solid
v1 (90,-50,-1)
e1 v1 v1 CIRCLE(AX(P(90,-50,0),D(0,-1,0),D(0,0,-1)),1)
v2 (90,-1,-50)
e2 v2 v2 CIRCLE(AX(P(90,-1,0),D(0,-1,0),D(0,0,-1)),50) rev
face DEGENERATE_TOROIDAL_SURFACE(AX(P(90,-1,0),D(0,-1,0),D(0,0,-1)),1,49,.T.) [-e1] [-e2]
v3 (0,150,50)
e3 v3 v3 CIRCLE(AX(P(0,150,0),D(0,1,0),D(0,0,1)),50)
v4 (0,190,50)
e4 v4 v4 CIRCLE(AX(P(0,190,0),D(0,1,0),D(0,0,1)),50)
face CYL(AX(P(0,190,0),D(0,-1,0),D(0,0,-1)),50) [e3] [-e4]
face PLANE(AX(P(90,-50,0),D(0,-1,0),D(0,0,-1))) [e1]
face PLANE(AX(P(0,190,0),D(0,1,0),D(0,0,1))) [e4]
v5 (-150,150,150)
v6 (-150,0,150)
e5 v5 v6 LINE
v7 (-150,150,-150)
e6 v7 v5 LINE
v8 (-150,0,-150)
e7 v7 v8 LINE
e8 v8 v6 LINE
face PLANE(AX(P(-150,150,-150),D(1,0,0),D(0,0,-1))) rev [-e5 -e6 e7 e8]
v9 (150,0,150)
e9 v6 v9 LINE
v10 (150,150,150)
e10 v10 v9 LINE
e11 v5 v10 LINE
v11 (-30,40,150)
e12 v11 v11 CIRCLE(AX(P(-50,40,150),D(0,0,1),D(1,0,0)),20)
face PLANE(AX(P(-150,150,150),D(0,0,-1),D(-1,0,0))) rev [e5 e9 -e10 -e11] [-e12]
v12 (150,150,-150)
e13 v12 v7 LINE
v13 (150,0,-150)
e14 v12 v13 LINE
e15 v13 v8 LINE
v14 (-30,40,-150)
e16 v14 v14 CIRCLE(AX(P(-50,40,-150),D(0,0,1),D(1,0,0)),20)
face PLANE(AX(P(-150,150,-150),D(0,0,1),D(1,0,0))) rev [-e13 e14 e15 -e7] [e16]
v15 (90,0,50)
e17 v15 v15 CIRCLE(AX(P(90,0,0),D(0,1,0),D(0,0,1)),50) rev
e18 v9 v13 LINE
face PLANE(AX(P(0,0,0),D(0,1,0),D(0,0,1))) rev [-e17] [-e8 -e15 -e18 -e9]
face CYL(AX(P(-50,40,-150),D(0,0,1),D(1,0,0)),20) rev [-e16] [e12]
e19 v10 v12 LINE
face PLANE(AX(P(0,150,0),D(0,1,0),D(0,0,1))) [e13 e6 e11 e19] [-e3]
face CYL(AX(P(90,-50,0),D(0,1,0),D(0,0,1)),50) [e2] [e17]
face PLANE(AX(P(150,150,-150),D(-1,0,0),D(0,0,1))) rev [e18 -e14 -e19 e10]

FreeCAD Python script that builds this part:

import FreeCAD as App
import Part
import Sketcher

V = App.Vector
Q = App.Units.Quantity


def edges_at(feature, points):
    """Names of the edges that pass closest to the given points."""
    edges = feature.Shape.Edges
    near = lambda p: min(range(len(edges)), key=lambda i: edges[i].distToShape(Part.Vertex(*p))[0])
    return sorted({f"Edge{near(p) + 1}" for p in points})

doc = App.newDocument("Part")
body = doc.addObject("PartDesign::Body", "Body")

# Sketch on XZ plane
sketch1 = doc.addObject("Sketcher::SketchObject", "Sketch")
body.addObject(sketch1)
sketch1.AttachmentSupport = (doc.XZ_Plane, [""])
sketch1.MapMode = "FlatFace"
sketch1.addGeometry(Part.LineSegment(V(-150, -150, 0), V(-150, 150, 0)), False)
sketch1.addGeometry(Part.LineSegment(V(-150, 150, 0), V(150, 150, 0)), False)
sketch1.addGeometry(Part.LineSegment(V(150, 150, 0), V(150, -150, 0)), False)
sketch1.addGeometry(Part.LineSegment(V(150, -150, 0), V(-150, -150, 0)), False)
sketch1.addConstraint(Sketcher.Constraint("Coincident", 0, 2, 1, 1))
sketch1.addConstraint(Sketcher.Constraint("Coincident", 1, 2, 2, 1))
sketch1.addConstraint(Sketcher.Constraint("Coincident", 2, 2, 3, 1))
sketch1.addConstraint(Sketcher.Constraint("Coincident", 3, 2, 0, 1))
sketch1.addConstraint(Sketcher.Constraint("Vertical", 0))
sketch1.addConstraint(Sketcher.Constraint("Horizontal", 1))
sketch1.addConstraint(Sketcher.Constraint("Vertical", 2))
sketch1.addConstraint(Sketcher.Constraint("Horizontal", 3))
sketch1.addConstraint(Sketcher.Constraint("Symmetric", 0, 2, 2, 2, -1, 1))
sketch1.addConstraint(Sketcher.Constraint("Equal", 3, 0))
sketch1.addConstraint(Sketcher.Constraint("DistanceX", 1, 1, 1, 2, Q("300 mm")))
pad1 = doc.addObject("PartDesign::Pad", "Pad")
body.addObject(pad1)
pad1.Profile = sketch1
pad1.Length = 150
pad1.Reversed = True

# Sketch on XY plane
sketch2 = doc.addObject("Sketcher::SketchObject", "Sketch001")
body.addObject(sketch2)
sketch2.AttachmentSupport = (doc.XY_Plane, [""])
sketch2.MapMode = "FlatFace"
sketch2.AttachmentOffset = App.Placement(V(0, 0, 150), App.Rotation())
sketch2.addGeometry(Part.Circle(V(-50, 40, 0), V(0, 0, 1), 20), False)
sketch2.addConstraint(Sketcher.Constraint("Diameter", 0, Q("40 mm")))
sketch2.addConstraint(Sketcher.Constraint("DistanceX", 0, 3, -1, 1, Q("50 mm")))
sketch2.addConstraint(Sketcher.Constraint("DistanceY", -1, 1, 0, 3, Q("40 mm")))
pocket1 = doc.addObject("PartDesign::Pocket", "Pocket")
body.addObject(pocket1)
pocket1.Profile = sketch2
pocket1.Type = "ThroughAll"

# Sketch on XZ plane
sketch3 = doc.addObject("Sketcher::SketchObject", "Sketch002")
body.addObject(sketch3)
sketch3.AttachmentSupport = (doc.XZ_Plane, [""])
sketch3.MapMode = "FlatFace"
sketch3.AttachmentOffset = App.Placement(V(0, 0, -150), App.Rotation())
sketch3.addGeometry(Part.Circle(V(0, 0, 0), V(0, 0, 1), 50), False)
sketch3.addConstraint(Sketcher.Constraint("Coincident", 0, 3, -1, 1))
sketch3.addConstraint(Sketcher.Constraint("Diameter", 0, Q("100 mm")))
pad2 = doc.addObject("PartDesign::Pad", "Pad001")
body.addObject(pad2)
pad2.Profile = sketch3
pad2.Length = 40
pad2.Reversed = True

# Sketch on XZ plane
sketch4 = doc.addObject("Sketcher::SketchObject", "Sketch003")
body.addObject(sketch4)
sketch4.AttachmentSupport = (doc.XZ_Plane, [""])
sketch4.MapMode = "FlatFace"
sketch4.addGeometry(Part.Circle(V(90, 0, 0), V(0, 0, 1), 50), False)
sketch4.addConstraint(Sketcher.Constraint("PointOnObject", 0, 3, -1))
sketch4.addConstraint(Sketcher.Constraint("Diameter", 0, Q("100 mm")))
sketch4.addConstraint(Sketcher.Constraint("DistanceX", -1, 1, 0, 3, Q("90 mm")))
pad3 = doc.addObject("PartDesign::Pad", "Pad002")
body.addObject(pad3)
pad3.Profile = sketch4
pad3.Length = 50
doc.recompute()

fillet = doc.addObject("PartDesign::Fillet", "Fillet")
body.addObject(fillet)
fillet.Base = (pad3, edges_at(pad3, [(90, -50, -50)]))
fillet.Radius = 49

doc.recompute()
